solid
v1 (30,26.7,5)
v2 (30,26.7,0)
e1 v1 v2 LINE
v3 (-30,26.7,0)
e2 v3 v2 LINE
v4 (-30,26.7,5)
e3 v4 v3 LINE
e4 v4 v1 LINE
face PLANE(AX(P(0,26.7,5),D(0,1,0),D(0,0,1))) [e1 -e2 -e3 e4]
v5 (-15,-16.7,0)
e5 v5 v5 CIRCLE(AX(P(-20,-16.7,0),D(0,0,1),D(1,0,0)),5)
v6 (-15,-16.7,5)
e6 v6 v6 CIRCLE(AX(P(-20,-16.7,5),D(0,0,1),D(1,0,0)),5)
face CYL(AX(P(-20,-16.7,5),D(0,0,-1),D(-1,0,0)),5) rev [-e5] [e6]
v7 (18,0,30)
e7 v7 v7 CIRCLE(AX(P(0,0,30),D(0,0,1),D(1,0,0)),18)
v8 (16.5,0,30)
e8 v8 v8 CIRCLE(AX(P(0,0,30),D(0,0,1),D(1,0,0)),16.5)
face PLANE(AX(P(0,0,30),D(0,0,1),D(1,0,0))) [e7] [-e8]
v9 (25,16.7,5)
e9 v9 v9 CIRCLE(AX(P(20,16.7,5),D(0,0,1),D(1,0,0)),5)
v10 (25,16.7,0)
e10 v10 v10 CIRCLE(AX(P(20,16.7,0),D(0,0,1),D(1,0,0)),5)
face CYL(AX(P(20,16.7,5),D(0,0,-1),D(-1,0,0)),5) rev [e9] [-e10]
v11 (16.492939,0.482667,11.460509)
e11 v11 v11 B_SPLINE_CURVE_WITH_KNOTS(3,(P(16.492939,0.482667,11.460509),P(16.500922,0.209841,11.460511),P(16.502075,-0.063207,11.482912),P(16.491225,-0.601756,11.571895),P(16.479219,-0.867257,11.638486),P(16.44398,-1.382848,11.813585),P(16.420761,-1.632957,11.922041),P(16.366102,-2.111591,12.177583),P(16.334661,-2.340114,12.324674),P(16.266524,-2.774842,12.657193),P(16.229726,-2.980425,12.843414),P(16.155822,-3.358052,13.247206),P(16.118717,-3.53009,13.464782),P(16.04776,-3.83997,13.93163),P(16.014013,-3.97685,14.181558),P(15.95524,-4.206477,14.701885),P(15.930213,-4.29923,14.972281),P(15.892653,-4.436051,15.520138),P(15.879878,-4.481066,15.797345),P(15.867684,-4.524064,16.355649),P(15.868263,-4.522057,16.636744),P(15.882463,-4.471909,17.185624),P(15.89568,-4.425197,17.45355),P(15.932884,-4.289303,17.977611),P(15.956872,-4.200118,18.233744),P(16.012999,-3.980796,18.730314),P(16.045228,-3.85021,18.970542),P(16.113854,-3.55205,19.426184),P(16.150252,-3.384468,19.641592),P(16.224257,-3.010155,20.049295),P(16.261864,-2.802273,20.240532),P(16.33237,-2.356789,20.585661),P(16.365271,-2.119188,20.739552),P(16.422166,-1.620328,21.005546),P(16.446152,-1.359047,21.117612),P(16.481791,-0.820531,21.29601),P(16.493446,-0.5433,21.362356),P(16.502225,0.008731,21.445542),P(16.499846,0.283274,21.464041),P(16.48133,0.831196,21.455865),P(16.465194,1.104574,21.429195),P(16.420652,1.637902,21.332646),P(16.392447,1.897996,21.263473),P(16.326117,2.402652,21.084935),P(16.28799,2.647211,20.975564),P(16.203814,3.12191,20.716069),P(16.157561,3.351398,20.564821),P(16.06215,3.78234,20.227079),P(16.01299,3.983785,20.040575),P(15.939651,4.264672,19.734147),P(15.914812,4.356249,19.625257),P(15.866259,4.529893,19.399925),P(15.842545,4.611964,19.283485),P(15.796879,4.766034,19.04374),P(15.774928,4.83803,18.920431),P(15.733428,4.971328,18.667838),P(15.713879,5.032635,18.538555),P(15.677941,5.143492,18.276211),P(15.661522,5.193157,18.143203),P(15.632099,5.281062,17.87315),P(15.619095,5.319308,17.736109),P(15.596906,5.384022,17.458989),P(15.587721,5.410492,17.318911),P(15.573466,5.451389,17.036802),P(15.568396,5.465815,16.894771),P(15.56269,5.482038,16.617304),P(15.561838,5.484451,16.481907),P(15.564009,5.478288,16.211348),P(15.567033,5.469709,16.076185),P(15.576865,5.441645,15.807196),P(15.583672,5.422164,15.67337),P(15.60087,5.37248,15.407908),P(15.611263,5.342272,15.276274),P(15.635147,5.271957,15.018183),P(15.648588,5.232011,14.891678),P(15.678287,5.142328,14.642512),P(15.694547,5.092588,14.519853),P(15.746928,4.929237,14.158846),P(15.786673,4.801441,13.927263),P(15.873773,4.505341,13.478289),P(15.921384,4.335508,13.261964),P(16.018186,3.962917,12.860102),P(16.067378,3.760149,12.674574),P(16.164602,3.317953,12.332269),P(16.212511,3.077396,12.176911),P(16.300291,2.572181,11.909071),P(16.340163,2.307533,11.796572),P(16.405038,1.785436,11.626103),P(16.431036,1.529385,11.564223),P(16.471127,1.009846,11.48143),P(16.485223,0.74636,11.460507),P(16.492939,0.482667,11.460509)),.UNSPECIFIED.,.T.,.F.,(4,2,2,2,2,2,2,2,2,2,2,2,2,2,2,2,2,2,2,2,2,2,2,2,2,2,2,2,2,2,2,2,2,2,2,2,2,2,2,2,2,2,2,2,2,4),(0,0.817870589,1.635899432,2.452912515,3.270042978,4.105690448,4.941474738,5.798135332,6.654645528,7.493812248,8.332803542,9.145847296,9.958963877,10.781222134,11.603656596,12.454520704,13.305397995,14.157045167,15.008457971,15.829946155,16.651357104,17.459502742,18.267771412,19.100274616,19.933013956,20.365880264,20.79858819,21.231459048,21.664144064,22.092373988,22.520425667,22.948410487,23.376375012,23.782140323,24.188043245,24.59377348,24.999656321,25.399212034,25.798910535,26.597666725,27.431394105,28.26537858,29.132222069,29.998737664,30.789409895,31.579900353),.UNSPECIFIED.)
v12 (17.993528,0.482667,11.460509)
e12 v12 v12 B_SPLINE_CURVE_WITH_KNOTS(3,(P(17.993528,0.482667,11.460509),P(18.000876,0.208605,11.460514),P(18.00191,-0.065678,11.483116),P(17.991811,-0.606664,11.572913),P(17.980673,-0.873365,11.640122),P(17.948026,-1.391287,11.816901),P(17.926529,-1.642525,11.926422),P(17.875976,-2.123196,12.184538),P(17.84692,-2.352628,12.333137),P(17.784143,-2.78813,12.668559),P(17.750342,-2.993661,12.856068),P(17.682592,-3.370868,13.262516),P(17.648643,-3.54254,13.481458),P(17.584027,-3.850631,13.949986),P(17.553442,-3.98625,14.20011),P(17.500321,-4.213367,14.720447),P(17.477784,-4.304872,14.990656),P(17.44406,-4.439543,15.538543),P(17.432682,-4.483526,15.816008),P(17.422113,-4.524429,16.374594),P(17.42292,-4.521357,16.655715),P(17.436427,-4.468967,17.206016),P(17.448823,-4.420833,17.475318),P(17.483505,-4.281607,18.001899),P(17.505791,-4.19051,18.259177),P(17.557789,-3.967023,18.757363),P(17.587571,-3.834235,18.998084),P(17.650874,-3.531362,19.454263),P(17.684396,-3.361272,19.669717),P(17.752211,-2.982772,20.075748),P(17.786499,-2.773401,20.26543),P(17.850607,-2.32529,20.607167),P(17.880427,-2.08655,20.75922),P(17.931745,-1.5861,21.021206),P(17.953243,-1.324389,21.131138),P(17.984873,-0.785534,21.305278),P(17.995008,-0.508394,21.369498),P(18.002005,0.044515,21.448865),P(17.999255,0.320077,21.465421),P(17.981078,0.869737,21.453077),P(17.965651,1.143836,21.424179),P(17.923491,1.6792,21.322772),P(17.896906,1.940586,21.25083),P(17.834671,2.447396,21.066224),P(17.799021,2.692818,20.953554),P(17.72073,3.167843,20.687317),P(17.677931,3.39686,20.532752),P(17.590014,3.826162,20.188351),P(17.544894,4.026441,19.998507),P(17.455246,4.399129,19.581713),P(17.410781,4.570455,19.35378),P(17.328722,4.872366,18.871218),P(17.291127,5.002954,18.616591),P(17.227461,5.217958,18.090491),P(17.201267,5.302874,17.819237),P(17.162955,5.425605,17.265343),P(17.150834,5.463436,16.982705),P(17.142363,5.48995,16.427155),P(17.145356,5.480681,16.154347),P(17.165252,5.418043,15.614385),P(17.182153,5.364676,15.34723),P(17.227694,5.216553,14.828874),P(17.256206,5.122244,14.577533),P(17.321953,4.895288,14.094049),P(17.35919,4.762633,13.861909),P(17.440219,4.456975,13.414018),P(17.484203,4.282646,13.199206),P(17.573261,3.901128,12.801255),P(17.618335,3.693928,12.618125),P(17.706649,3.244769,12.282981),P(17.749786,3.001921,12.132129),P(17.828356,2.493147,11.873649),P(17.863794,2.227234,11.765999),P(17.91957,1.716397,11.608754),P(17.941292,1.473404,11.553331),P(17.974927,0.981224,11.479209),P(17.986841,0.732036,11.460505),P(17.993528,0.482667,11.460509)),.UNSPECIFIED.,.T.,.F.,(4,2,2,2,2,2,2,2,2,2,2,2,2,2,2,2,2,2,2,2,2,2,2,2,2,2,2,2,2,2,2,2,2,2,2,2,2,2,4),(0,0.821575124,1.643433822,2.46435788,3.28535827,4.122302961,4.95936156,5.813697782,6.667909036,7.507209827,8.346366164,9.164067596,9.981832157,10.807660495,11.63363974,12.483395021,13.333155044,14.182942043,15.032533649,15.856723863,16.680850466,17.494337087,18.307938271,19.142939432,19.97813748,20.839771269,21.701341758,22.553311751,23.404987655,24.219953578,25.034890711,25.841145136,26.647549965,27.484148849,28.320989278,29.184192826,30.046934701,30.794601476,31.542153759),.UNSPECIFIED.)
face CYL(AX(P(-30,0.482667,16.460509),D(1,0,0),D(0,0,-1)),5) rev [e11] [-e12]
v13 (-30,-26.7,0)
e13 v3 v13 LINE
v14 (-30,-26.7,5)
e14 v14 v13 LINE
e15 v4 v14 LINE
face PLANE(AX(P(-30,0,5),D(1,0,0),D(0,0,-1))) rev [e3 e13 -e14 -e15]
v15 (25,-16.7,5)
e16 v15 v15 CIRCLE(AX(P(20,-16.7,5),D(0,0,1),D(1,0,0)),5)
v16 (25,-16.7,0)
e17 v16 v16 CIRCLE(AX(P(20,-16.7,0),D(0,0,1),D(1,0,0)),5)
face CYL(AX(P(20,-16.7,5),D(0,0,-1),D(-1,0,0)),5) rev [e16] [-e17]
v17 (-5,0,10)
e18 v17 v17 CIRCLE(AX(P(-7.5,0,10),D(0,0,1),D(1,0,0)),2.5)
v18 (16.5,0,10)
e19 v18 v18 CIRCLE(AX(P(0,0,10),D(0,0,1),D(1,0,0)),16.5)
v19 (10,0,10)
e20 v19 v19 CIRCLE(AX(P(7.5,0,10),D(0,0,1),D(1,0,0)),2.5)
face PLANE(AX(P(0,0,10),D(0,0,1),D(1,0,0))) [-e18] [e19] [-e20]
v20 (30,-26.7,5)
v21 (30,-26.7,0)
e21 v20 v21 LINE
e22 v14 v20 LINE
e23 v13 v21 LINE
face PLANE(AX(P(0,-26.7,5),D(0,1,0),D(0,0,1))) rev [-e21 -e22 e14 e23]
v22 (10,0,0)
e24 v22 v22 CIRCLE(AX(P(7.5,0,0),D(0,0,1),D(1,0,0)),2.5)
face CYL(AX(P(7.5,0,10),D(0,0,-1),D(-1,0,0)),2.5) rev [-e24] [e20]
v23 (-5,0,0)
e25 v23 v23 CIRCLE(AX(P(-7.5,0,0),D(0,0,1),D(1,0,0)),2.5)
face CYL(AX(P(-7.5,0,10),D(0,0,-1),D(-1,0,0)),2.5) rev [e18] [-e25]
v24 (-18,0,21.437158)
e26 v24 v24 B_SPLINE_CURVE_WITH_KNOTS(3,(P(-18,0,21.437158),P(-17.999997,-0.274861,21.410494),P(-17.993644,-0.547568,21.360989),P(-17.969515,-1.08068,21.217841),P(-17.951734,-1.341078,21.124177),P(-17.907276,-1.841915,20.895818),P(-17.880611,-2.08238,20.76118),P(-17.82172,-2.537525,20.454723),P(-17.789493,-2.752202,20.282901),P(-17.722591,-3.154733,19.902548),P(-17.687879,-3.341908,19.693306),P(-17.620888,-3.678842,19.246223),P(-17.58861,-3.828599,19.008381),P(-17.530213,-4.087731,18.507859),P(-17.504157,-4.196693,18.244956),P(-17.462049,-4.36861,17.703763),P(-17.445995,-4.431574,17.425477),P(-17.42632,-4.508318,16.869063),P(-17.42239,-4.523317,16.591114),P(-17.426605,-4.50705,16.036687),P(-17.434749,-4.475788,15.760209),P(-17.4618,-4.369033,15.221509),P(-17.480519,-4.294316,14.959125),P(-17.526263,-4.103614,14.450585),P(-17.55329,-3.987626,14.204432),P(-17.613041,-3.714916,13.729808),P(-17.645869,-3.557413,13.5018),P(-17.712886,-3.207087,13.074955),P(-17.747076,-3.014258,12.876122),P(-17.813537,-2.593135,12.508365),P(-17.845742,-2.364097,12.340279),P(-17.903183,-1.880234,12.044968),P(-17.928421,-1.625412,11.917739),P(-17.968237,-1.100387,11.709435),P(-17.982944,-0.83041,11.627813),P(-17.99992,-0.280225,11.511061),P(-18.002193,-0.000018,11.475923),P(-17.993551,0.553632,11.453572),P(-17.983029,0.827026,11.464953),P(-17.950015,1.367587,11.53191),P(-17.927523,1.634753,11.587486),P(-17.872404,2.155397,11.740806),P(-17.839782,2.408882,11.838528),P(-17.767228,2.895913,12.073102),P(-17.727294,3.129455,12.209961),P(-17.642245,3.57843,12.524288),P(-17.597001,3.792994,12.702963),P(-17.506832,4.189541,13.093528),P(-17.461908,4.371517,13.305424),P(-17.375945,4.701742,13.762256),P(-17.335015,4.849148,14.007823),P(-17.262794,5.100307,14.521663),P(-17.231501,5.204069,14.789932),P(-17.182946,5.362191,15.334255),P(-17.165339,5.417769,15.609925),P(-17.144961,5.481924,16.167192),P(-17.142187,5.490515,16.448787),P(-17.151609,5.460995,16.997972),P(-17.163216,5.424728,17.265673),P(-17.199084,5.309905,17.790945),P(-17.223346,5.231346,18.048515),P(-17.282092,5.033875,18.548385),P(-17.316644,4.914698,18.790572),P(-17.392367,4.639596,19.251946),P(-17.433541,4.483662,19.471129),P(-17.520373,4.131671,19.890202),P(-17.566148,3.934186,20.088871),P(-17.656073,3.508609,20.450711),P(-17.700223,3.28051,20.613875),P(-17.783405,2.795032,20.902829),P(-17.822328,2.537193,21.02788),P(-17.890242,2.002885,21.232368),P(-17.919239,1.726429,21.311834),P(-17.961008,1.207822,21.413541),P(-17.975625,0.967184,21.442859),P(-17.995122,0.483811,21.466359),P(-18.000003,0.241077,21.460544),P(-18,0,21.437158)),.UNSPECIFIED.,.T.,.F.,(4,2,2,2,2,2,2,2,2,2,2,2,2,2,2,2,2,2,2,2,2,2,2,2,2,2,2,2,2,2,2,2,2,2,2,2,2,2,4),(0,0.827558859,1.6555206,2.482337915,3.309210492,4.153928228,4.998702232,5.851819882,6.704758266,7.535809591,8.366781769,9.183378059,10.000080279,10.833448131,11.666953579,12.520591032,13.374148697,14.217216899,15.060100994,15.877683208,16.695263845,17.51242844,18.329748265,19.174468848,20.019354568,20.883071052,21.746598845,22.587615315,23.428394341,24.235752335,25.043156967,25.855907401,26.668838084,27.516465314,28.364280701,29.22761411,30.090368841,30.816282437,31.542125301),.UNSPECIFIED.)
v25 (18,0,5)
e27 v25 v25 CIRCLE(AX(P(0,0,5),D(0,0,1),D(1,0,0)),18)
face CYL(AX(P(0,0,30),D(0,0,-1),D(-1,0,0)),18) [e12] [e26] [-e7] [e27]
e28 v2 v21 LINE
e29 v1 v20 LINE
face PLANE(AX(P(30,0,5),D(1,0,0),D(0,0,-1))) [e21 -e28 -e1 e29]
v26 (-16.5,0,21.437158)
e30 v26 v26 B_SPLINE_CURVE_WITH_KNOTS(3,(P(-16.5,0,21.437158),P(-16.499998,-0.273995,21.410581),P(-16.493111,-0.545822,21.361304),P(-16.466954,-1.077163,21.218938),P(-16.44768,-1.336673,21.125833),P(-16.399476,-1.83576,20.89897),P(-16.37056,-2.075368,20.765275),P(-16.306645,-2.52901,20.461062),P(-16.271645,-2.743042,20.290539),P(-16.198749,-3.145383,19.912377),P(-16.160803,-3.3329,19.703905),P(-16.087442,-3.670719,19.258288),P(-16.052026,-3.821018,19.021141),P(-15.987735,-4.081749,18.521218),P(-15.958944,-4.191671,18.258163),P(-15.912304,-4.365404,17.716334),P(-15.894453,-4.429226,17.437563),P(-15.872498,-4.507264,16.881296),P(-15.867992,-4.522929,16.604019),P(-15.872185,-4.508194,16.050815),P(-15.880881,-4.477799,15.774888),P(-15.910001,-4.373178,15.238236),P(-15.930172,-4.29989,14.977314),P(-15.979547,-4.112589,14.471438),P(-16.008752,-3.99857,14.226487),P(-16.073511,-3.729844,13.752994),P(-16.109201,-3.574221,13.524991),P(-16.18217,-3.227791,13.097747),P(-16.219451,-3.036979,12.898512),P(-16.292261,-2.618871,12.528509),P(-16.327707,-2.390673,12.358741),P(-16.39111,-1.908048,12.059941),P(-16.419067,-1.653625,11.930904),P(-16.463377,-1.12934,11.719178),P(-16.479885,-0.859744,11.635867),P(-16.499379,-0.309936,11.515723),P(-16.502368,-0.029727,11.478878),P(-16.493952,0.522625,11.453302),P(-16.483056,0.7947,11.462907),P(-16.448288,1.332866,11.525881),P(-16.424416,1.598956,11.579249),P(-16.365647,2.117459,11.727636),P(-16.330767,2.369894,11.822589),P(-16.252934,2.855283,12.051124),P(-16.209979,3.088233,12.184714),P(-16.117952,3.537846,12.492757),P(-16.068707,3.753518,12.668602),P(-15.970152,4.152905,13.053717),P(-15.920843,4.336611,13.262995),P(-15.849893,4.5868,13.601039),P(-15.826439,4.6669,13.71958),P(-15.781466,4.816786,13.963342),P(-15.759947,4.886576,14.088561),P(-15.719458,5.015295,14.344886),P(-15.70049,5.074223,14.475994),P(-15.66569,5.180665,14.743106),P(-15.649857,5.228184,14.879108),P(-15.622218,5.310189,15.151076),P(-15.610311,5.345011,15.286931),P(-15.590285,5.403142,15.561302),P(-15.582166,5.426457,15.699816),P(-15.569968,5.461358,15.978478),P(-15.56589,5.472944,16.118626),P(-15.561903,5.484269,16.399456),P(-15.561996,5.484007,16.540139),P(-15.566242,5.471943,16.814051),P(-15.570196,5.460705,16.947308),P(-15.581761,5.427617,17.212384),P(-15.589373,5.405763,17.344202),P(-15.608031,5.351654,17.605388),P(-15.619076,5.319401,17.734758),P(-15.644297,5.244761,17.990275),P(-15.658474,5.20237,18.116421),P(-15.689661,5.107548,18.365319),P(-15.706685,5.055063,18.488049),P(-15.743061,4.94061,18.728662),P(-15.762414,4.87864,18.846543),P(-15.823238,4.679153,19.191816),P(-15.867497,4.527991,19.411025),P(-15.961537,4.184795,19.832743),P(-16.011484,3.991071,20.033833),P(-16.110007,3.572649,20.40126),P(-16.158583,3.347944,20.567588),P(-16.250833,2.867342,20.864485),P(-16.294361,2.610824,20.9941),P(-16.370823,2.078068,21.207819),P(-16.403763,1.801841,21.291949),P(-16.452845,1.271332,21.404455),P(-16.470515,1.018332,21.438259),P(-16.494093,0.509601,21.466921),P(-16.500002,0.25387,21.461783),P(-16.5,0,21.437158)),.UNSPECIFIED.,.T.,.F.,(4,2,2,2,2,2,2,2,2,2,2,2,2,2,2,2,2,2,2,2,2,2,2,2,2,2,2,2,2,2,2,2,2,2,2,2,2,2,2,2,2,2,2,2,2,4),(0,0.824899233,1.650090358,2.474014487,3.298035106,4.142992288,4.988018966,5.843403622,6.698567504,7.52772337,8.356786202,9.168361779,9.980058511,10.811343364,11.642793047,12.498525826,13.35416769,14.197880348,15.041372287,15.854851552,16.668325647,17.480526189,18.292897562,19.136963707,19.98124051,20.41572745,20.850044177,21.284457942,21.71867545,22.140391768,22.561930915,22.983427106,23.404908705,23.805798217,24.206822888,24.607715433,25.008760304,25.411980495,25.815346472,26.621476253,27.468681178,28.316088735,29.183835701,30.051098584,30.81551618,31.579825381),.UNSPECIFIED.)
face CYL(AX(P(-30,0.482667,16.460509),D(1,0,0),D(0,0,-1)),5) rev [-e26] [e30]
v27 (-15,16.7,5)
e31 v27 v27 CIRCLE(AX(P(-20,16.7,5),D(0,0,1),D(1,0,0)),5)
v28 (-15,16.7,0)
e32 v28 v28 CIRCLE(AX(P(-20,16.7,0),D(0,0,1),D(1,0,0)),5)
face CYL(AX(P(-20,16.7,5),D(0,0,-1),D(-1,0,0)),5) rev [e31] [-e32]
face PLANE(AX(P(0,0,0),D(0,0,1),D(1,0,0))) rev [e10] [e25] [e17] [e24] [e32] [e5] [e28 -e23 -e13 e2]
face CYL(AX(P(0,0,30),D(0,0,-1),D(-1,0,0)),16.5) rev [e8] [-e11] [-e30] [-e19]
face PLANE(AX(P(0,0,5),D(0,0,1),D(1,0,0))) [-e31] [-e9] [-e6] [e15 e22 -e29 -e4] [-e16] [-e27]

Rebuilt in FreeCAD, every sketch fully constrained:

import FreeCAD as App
import Part
import Sketcher


def add_polygon(sketch, points):
    """Adds a closed chain of lines whose ends are joined by coincident constraints."""
    first, n = sketch.GeometryCount, len(points)
    for a, b in zip(points, points[1:] + points[:1]):
        sketch.addGeometry(Part.LineSegment(App.Vector(*a, 0), App.Vector(*b, 0)), False)
    for i in range(n):
        sketch.addConstraint(Sketcher.Constraint("Coincident", first + i, 2, first + (i + 1) % n, 1))

doc = App.newDocument("Part")
body = doc.addObject("PartDesign::Body", "Body")

# Sketch on XY plane
sketch1 = body.newObject("Sketcher::SketchObject", "Sketch")
sketch1.AttachmentSupport = (doc.getObject("XY_Plane"), [""])
sketch1.MapMode = "FlatFace"
add_polygon(sketch1, [(-30, 26.7), (-30, -26.7), (30, -26.7), (30, 26.7)])  # lines 0-3
sketch1.addGeometry(Part.Circle(App.Vector(-20, -16.7, 0), App.Vector(0, 0, 1), 5), False)  # 4
sketch1.addGeometry(Part.Circle(App.Vector(20, -16.7, 0), App.Vector(0, 0, 1), 5), False)  # 5
sketch1.addGeometry(Part.Circle(App.Vector(-20, 16.7, 0), App.Vector(0, 0, 1), 5), False)  # 6
sketch1.addGeometry(Part.Circle(App.Vector(0, 0, 0), App.Vector(0, 0, 1), 18), False)  # 7
sketch1.addGeometry(Part.Circle(App.Vector(20, 16.7, 0), App.Vector(0, 0, 1), 5), False)  # 8
sketch1.addConstraint(Sketcher.Constraint("Vertical", 0))
sketch1.addConstraint(Sketcher.Constraint("Horizontal", 1))
sketch1.addConstraint(Sketcher.Constraint("Vertical", 2))
sketch1.addConstraint(Sketcher.Constraint("Horizontal", 3))
sketch1.addConstraint(Sketcher.Constraint("Coincident", 7, 3, -1, 1))
sketch1.addConstraint(Sketcher.Constraint("Equal", 4, 5))
sketch1.addConstraint(Sketcher.Constraint("Equal", 5, 6))
sketch1.addConstraint(Sketcher.Constraint("Equal", 6, 8))
sketch1.addConstraint(Sketcher.Constraint("Symmetric", 5, 3, 6, 3, -1, 1))
sketch1.addConstraint(Sketcher.Constraint("Symmetric", 4, 3, 8, 3, -1, 1))
sketch1.addConstraint(Sketcher.Constraint("Symmetric", 0, 2, 2, 2, -1, 1))
sketch1.addConstraint(Sketcher.Constraint("Symmetric", 4, 3, 5, 3, -2))
sketch1.addConstraint(Sketcher.Constraint("Diameter", 4, 10.0))
sketch1.addConstraint(Sketcher.Constraint("Diameter", 7, 36.0))
sketch1.addConstraint(Sketcher.Constraint("DistanceX", 1, 1, 1, 2, 60.0))
sketch1.addConstraint(Sketcher.Constraint("DistanceY", 0, 2, 0, 1, 53.4))
sketch1.addConstraint(Sketcher.Constraint("DistanceX", 4, 3, -1, 1, 20.0))
sketch1.addConstraint(Sketcher.Constraint("DistanceY", 0, 2, 4, 3, 10.0))
pad1 = body.newObject("PartDesign::Pad", "Pad")
pad1.Profile = sketch1
pad1.Length = 5

# Sketch on XY plane
sketch2 = body.newObject("Sketcher::SketchObject", "Sketch001")
sketch2.AttachmentSupport = (doc.getObject("XY_Plane"), [""])
sketch2.MapMode = "FlatFace"
sketch2.addGeometry(Part.Circle(App.Vector(0, 0, 0), App.Vector(0, 0, 1), 18), False)
sketch2.addGeometry(Part.Circle(App.Vector(0, 0, 0), App.Vector(0, 0, 1), 16.5), False)
sketch2.addConstraint(Sketcher.Constraint("Coincident", 0, 3, -1, 1))
sketch2.addConstraint(Sketcher.Constraint("Coincident", 1, 3, -1, 1))
sketch2.addConstraint(Sketcher.Constraint("Diameter", 0, 36.0))
sketch2.addConstraint(Sketcher.Constraint("Diameter", 1, 33.0))
pad2 = body.newObject("PartDesign::Pad", "Pad001")
pad2.Profile = sketch2
pad2.Length = 30

# Sketch on XY plane
sketch3 = body.newObject("Sketcher::SketchObject", "Sketch002")
sketch3.AttachmentSupport = (doc.getObject("XY_Plane"), [""])
sketch3.MapMode = "FlatFace"
sketch3.addGeometry(Part.Circle(App.Vector(0, 0, 0), App.Vector(0, 0, 1), 16.5), False)
sketch3.addGeometry(Part.Circle(App.Vector(-7.5, 0, 0), App.Vector(0, 0, 1), 2.5), False)
sketch3.addGeometry(Part.Circle(App.Vector(7.5, 0, 0), App.Vector(0, 0, 1), 2.5), False)
sketch3.addConstraint(Sketcher.Constraint("Coincident", 0, 3, -1, 1))
sketch3.addConstraint(Sketcher.Constraint("Equal", 1, 2))
sketch3.addConstraint(Sketcher.Constraint("Symmetric", 1, 3, 2, 3, -1, 1))
sketch3.addConstraint(Sketcher.Constraint("PointOnObject", 1, 3, -1))
sketch3.addConstraint(Sketcher.Constraint("Diameter", 0, 33.0))
sketch3.addConstraint(Sketcher.Constraint("Diameter", 1, 5.0))
sketch3.addConstraint(Sketcher.Constraint("DistanceX", 1, 3, 2, 3, 15.0))
pad3 = body.newObject("PartDesign::Pad", "Pad002")
pad3.Profile = sketch3
pad3.Length = 10

# Sketch on YZ plane
sketch4 = body.newObject("Sketcher::SketchObject", "Sketch003")
sketch4.AttachmentSupport = (doc.getObject("YZ_Plane"), [""])
sketch4.MapMode = "FlatFace"
sketch4.addGeometry(Part.Circle(App.Vector(0.482667, 16.460509, 0), App.Vector(0, 0, 1), 5), False)
sketch4.addConstraint(Sketcher.Constraint("Diameter", 0, 10.0))
sketch4.addConstraint(Sketcher.Constraint("DistanceY", -1, 1, 0, 3, 16.460509))
sketch4.addConstraint(Sketcher.Constraint("DistanceX", -1, 1, 0, 3, 0.482667))
pocket1 = body.newObject("PartDesign::Pocket", "Pocket")
pocket1.Profile = sketch4
pocket1.Type = "ThroughAll"
pocket1.Midplane = True

doc.recompute()
